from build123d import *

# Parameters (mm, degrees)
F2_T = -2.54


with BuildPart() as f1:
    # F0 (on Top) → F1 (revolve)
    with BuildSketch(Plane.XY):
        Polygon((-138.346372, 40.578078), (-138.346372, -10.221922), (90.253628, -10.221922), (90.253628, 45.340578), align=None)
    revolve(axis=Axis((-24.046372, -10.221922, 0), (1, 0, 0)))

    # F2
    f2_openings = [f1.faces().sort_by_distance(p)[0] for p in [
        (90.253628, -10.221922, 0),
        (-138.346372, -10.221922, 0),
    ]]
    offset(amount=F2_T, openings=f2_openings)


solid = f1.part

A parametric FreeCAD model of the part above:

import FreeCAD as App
import Part
import Sketcher
Q = App.Units.Quantity


def faces_at(feature, points):
    """Names of the faces that lie closest to the given points."""
    faces = feature.Shape.Faces
    near = lambda p: min(range(len(faces)), key=lambda i: faces[i].distToShape(Part.Vertex(*p))[0])
    return sorted({f"Face{near(p) + 1}" for p in points})

doc = App.newDocument("Part")
body = doc.addObject("PartDesign::Body", "Body")

sketch1 = body.newObject("Sketcher::SketchObject", "Sketch")
sketch1.AttachmentSupport = (doc.getObject("XY_Plane"), [""])
sketch1.MapMode = "FlatFace"
sketch1.addGeometry(Part.LineSegment(App.Vector(-138, 41, 0), App.Vector(-138, -10, 0)), False)
sketch1.addGeometry(Part.LineSegment(App.Vector(-138, -10, 0), App.Vector(90, -10, 0)), False)
sketch1.addGeometry(Part.LineSegment(App.Vector(90, -10, 0), App.Vector(90, 45, 0)), False)
sketch1.addGeometry(Part.LineSegment(App.Vector(90, 45, 0), App.Vector(-138, 41, 0)), False)
sketch1.addGeometry(Part.LineSegment(App.Vector(-138, -10, 0), App.Vector(90, -10, 0)), True)
sketch1.addConstraint(Sketcher.Constraint("Coincident", 0, 2, 1, 1))
sketch1.addConstraint(Sketcher.Constraint("Coincident", 1, 2, 2, 1))
sketch1.addConstraint(Sketcher.Constraint("Coincident", 2, 2, 3, 1))
sketch1.addConstraint(Sketcher.Constraint("Coincident", 3, 2, 0, 1))
sketch1.addConstraint(Sketcher.Constraint("Vertical", 0))
sketch1.addConstraint(Sketcher.Constraint("Horizontal", 1))
sketch1.addConstraint(Sketcher.Constraint("Vertical", 2))
sketch1.addConstraint(Sketcher.Constraint("Horizontal", 4))
sketch1.addConstraint(Sketcher.Constraint("Coincident", 4, 1, 0, 2))
sketch1.addConstraint(Sketcher.Constraint("Vertical", 2, 2, 4, 2))
sketch1.addConstraint(Sketcher.Constraint("DistanceX", 1, 1, 1, 2, Q("9 in")))
sketch1.addConstraint(Sketcher.Constraint("DistanceY", 0, 2, 0, 1, Q("2 in")))
sketch1.addConstraint(Sketcher.Constraint("DistanceY", 2, 1, 2, 2, Q("2.1875 in")))
sketch1.addConstraint(Sketcher.Constraint("DistanceX", 0, 2, -1, 1, 138.346372))
sketch1.addConstraint(Sketcher.Constraint("DistanceY", 0, 2, -1, 1, 10.221922))
revolution = body.newObject("PartDesign::Revolution", "Revolution")
revolution.Profile = sketch1
revolution.ReferenceAxis = (sketch1, ["Axis0"])
revolution.Angle = 360
doc.recompute()

thickness = body.newObject("PartDesign::Thickness", "Thickness")
thickness.Base = (revolution, faces_at(revolution, [(90.254, -10.222, 0), (-138.346, -10.222, 0)]))
thickness.Value = Q("0.1 in")
thickness.Reversed = True
thickness.Join = "Arc"

doc.recompute()
